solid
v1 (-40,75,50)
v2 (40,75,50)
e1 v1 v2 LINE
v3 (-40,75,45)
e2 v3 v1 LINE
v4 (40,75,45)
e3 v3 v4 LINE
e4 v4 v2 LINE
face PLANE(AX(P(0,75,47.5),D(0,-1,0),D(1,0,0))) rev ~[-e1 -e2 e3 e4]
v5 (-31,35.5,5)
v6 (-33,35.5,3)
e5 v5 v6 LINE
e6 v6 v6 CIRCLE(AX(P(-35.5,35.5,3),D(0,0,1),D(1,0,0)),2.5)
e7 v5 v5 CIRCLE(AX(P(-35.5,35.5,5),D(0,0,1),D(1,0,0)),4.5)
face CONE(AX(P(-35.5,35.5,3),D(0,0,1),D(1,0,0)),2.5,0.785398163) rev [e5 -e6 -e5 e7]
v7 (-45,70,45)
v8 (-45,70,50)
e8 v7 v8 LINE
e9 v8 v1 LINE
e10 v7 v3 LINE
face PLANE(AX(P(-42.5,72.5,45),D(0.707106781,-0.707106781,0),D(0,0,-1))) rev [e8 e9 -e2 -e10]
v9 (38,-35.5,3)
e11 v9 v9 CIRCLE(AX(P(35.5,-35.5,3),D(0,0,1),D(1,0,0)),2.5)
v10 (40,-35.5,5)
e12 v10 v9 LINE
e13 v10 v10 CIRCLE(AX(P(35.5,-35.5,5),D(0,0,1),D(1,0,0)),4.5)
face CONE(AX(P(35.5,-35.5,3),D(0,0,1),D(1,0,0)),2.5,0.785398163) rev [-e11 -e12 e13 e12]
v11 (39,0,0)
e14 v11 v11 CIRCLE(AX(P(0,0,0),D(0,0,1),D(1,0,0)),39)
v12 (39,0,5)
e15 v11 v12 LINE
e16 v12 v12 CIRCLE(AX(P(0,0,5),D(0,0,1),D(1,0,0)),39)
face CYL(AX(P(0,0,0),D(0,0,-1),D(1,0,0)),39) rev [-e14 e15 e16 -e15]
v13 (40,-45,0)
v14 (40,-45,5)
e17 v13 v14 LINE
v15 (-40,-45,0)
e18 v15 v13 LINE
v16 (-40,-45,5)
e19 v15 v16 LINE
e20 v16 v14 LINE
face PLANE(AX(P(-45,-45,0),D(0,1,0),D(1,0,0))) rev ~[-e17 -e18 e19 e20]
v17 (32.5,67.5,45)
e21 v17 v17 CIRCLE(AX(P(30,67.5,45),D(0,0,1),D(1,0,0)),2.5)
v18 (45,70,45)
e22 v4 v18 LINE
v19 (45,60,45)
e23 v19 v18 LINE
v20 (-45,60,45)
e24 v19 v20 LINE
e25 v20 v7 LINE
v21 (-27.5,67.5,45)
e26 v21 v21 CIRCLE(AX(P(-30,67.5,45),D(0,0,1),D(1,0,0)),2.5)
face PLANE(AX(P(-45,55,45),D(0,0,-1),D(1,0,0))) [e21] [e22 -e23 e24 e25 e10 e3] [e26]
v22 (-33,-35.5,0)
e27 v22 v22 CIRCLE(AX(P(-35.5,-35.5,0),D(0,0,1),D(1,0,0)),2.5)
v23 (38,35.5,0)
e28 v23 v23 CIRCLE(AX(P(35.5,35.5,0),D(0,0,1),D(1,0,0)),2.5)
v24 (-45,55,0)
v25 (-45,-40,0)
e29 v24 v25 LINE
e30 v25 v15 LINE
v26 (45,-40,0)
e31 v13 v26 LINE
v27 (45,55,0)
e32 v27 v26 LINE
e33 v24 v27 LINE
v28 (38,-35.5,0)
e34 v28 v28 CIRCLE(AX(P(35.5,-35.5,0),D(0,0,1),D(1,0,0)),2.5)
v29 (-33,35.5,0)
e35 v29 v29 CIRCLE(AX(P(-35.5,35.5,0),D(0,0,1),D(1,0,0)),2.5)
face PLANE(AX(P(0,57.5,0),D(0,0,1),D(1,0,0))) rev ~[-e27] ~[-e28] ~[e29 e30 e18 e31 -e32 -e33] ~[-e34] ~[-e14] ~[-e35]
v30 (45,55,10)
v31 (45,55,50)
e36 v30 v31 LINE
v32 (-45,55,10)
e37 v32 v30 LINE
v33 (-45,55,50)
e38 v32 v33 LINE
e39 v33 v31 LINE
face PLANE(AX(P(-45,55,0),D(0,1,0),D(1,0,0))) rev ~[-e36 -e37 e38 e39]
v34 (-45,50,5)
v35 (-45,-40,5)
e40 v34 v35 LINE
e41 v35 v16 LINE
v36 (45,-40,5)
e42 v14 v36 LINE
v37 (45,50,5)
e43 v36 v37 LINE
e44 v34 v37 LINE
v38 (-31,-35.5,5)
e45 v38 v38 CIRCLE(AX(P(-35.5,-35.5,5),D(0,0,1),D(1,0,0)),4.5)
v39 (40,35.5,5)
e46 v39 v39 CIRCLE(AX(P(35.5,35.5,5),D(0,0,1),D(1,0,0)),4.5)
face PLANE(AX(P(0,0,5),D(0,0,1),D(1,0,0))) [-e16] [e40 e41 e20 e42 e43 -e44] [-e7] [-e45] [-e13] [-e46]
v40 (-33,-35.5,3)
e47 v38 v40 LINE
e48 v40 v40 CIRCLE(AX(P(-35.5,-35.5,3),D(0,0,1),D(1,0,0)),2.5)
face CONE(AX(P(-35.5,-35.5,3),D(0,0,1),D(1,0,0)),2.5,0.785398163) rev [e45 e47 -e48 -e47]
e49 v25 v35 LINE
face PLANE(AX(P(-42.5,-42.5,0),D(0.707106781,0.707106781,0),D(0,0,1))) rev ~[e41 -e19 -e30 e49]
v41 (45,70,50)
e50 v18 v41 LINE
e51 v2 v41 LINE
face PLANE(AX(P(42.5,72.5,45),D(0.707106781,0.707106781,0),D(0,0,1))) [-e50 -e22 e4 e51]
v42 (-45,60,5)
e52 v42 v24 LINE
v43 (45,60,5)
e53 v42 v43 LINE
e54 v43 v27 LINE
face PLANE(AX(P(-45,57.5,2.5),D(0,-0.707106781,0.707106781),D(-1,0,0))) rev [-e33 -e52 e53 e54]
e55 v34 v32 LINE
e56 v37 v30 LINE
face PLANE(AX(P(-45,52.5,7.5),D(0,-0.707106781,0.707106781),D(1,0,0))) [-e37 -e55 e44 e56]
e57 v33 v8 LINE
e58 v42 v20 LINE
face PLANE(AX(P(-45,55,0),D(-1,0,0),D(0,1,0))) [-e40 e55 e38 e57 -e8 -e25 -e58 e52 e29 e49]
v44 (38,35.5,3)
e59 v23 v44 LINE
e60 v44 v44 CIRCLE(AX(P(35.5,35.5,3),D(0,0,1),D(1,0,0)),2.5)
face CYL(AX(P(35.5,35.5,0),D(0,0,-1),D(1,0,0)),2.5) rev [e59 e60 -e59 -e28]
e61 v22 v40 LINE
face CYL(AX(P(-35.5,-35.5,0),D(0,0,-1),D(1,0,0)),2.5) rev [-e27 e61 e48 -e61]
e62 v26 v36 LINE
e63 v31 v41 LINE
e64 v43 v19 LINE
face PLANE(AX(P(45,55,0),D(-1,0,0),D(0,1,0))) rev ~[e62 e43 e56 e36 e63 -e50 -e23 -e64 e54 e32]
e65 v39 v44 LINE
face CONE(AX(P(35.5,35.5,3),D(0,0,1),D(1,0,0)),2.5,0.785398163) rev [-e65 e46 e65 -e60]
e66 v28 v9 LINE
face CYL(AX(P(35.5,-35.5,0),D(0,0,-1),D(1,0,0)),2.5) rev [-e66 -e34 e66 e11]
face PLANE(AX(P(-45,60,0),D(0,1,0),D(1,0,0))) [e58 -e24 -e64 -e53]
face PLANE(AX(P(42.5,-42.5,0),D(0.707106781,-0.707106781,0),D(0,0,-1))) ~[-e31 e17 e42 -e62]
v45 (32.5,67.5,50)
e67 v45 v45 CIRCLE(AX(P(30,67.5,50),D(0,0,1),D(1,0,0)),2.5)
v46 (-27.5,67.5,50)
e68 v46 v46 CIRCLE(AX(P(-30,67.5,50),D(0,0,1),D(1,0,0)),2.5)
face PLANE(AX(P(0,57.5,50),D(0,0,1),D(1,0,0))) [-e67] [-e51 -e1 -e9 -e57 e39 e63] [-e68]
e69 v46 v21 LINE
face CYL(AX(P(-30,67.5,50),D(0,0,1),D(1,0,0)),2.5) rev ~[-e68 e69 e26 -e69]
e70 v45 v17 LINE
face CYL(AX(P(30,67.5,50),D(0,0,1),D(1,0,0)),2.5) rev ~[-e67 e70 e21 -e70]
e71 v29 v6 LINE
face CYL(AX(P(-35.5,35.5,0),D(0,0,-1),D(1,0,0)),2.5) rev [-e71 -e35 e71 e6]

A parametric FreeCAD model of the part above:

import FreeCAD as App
import Part
import Sketcher

V = App.Vector


def edges_at(feature, points):
    """Names of the edges that pass closest to the given points."""
    edges = feature.Shape.Edges
    near = lambda p: min(range(len(edges)), key=lambda i: edges[i].distToShape(Part.Vertex(*p))[0])
    return sorted({f"Edge{near(p) + 1}" for p in points})

doc = App.newDocument("Part")
body = doc.addObject("PartDesign::Body", "Body")

# Sketch on XY plane
sketch1 = body.newObject("Sketcher::SketchObject", "Sketch")
sketch1.AttachmentSupport = (doc.getObject("XY_Plane"), [""])
sketch1.MapMode = "FlatFace"
sketch1.addGeometry(Part.LineSegment(V(-45, -45, 0), V(45, -45, 0)), False)
sketch1.addGeometry(Part.LineSegment(V(45, -45, 0), V(45, 55, 0)), False)
sketch1.addGeometry(Part.LineSegment(V(45, 55, 0), V(-45, 55, 0)), False)
sketch1.addGeometry(Part.LineSegment(V(-45, 55, 0), V(-45, -45, 0)), False)
sketch1.addGeometry(Part.Circle(V(-35.5, -35.5, 0), V(0, 0, 1), 2.5), False)
sketch1.addGeometry(Part.Circle(V(35.5, -35.5, 0), V(0, 0, 1), 2.5), False)
sketch1.addGeometry(Part.Circle(V(-35.5, 35.5, 0), V(0, 0, 1), 2.5), False)
sketch1.addGeometry(Part.Circle(V(0, 0, 0), V(0, 0, 1), 39), False)
sketch1.addGeometry(Part.Circle(V(35.5, 35.5, 0), V(0, 0, 1), 2.5), False)
sketch1.addConstraint(Sketcher.Constraint("Coincident", 0, 2, 1, 1))
sketch1.addConstraint(Sketcher.Constraint("Coincident", 1, 2, 2, 1))
sketch1.addConstraint(Sketcher.Constraint("Coincident", 2, 2, 3, 1))
sketch1.addConstraint(Sketcher.Constraint("Coincident", 3, 2, 0, 1))
sketch1.addConstraint(Sketcher.Constraint("Horizontal", 0))
sketch1.addConstraint(Sketcher.Constraint("Vertical", 1))
sketch1.addConstraint(Sketcher.Constraint("Horizontal", 2))
sketch1.addConstraint(Sketcher.Constraint("Vertical", 3))
sketch1.addConstraint(Sketcher.Constraint("Coincident", 7, 3, -1, 1))
sketch1.addConstraint(Sketcher.Constraint("Equal", 4, 5))
sketch1.addConstraint(Sketcher.Constraint("Equal", 5, 6))
sketch1.addConstraint(Sketcher.Constraint("Equal", 6, 8))
sketch1.addConstraint(Sketcher.Constraint("Symmetric", 5, 3, 6, 3, -1, 1))
sketch1.addConstraint(Sketcher.Constraint("Symmetric", 4, 3, 8, 3, -1, 1))
sketch1.addConstraint(Sketcher.Constraint("Symmetric", 4, 3, 5, 3, -2))
sketch1.addConstraint(Sketcher.Constraint("Diameter", 4, 5.0))
sketch1.addConstraint(Sketcher.Constraint("Diameter", 7, 78.0))
sketch1.addConstraint(Sketcher.Constraint("DistanceX", 0, 1, 0, 2, 90.0))
sketch1.addConstraint(Sketcher.Constraint("DistanceY", 1, 1, 1, 2, 100.0))
sketch1.addConstraint(Sketcher.Constraint("DistanceX", -1, 1, 0, 2, 45.0))
sketch1.addConstraint(Sketcher.Constraint("DistanceY", 0, 2, -1, 1, 45.0))
sketch1.addConstraint(Sketcher.Constraint("DistanceX", 4, 3, 5, 3, 71.0))
sketch1.addConstraint(Sketcher.Constraint("DistanceY", 4, 3, 6, 3, 71.0))
pad1 = body.newObject("PartDesign::Pad", "Pad")
pad1.Profile = sketch1
pad1.Length = 5

# Sketch on XY plane
sketch2 = body.newObject("Sketcher::SketchObject", "Sketch001")
sketch2.AttachmentSupport = (doc.getObject("XY_Plane"), [""])
sketch2.MapMode = "FlatFace"
sketch2.addGeometry(Part.LineSegment(V(-45, 60, 0), V(-45, 55, 0)), False)
sketch2.addGeometry(Part.LineSegment(V(-45, 55, 0), V(45, 55, 0)), False)
sketch2.addGeometry(Part.LineSegment(V(45, 55, 0), V(45, 60, 0)), False)
sketch2.addGeometry(Part.LineSegment(V(45, 60, 0), V(-45, 60, 0)), False)
sketch2.addConstraint(Sketcher.Constraint("Coincident", 0, 2, 1, 1))
sketch2.addConstraint(Sketcher.Constraint("Coincident", 1, 2, 2, 1))
sketch2.addConstraint(Sketcher.Constraint("Coincident", 2, 2, 3, 1))
sketch2.addConstraint(Sketcher.Constraint("Coincident", 3, 2, 0, 1))
sketch2.addConstraint(Sketcher.Constraint("Vertical", 0))
sketch2.addConstraint(Sketcher.Constraint("Horizontal", 1))
sketch2.addConstraint(Sketcher.Constraint("Vertical", 2))
sketch2.addConstraint(Sketcher.Constraint("Horizontal", 3))
sketch2.addConstraint(Sketcher.Constraint("DistanceX", 1, 1, 1, 2, 90.0))
sketch2.addConstraint(Sketcher.Constraint("DistanceY", 0, 2, 0, 1, 5.0))
sketch2.addConstraint(Sketcher.Constraint("DistanceX", 0, 2, -1, 1, 45.0))
sketch2.addConstraint(Sketcher.Constraint("DistanceY", -1, 1, 0, 2, 55.0))
pad2 = body.newObject("PartDesign::Pad", "Pad001")
pad2.Profile = sketch2
pad2.Length = 50

# Sketch on XZ plane
sketch3 = body.newObject("Sketcher::SketchObject", "Sketch002")
sketch3.AttachmentSupport = (doc.getObject("XZ_Plane"), [""])
sketch3.MapMode = "FlatFace"
sketch3.AttachmentOffset = App.Placement(V(0, 0, -55), App.Rotation())
sketch3.addGeometry(Part.LineSegment(V(-45, 50, 0), V(-45, 45, 0)), False)
sketch3.addGeometry(Part.LineSegment(V(-45, 45, 0), V(45, 45, 0)), False)
sketch3.addGeometry(Part.LineSegment(V(45, 45, 0), V(45, 50, 0)), False)
sketch3.addGeometry(Part.LineSegment(V(45, 50, 0), V(-45, 50, 0)), False)
sketch3.addConstraint(Sketcher.Constraint("Coincident", 0, 2, 1, 1))
sketch3.addConstraint(Sketcher.Constraint("Coincident", 1, 2, 2, 1))
sketch3.addConstraint(Sketcher.Constraint("Coincident", 2, 2, 3, 1))
sketch3.addConstraint(Sketcher.Constraint("Coincident", 3, 2, 0, 1))
sketch3.addConstraint(Sketcher.Constraint("Vertical", 0))
sketch3.addConstraint(Sketcher.Constraint("Horizontal", 1))
sketch3.addConstraint(Sketcher.Constraint("Vertical", 2))
sketch3.addConstraint(Sketcher.Constraint("Horizontal", 3))
sketch3.addConstraint(Sketcher.Constraint("DistanceX", 1, 1, 1, 2, 90.0))
sketch3.addConstraint(Sketcher.Constraint("DistanceY", 0, 2, 0, 1, 5.0))
sketch3.addConstraint(Sketcher.Constraint("DistanceX", 0, 2, -1, 1, 45.0))
sketch3.addConstraint(Sketcher.Constraint("DistanceY", -1, 1, 0, 2, 45.0))
pad3 = body.newObject("PartDesign::Pad", "Pad002")
pad3.Profile = sketch3
pad3.Length = 20
pad3.Reversed = True

# Sketch on XY plane
sketch4 = body.newObject("Sketcher::SketchObject", "Sketch003")
sketch4.AttachmentSupport = (doc.getObject("XY_Plane"), [""])
sketch4.MapMode = "FlatFace"
sketch4.AttachmentOffset = App.Placement(V(0, 0, 50), App.Rotation())
sketch4.addGeometry(Part.Circle(V(30, 67.5, 0), V(0, 0, 1), 2.5), False)
sketch4.addGeometry(Part.Circle(V(-30, 67.5, 0), V(0, 0, 1), 2.5), False)
sketch4.addConstraint(Sketcher.Constraint("Equal", 0, 1))
sketch4.addConstraint(Sketcher.Constraint("Symmetric", 0, 3, 1, 3, -2))
sketch4.addConstraint(Sketcher.Constraint("Diameter", 0, 5.0))
sketch4.addConstraint(Sketcher.Constraint("DistanceX", -1, 1, 0, 3, 30.0))
sketch4.addConstraint(Sketcher.Constraint("DistanceY", -1, 1, 0, 3, 67.5))
pocket1 = body.newObject("PartDesign::Pocket", "Pocket")
pocket1.Profile = sketch4
pocket1.Length = 10
doc.recompute()

chamfer = body.newObject("PartDesign::Chamfer", "Chamfer")
chamfer.Base = (pocket1, edges_at(pocket1, [
    (-45, -45, 2.5),
    (45, -45, 2.5),
    (45, 75, 47.5),
    (-45, 75, 47.5),
    (0, 55, 5),
    (0, 60, 0),
]))
chamfer.Size = 5
doc.recompute()

chamfer2 = body.newObject("PartDesign::Chamfer", "Chamfer001")
chamfer2.Base = (chamfer, edges_at(chamfer, [
    (-38, -35.5, 5),
    (33, -35.5, 5),
    (33, 35.5, 5),
    (-38, 35.5, 5),
]))
chamfer2.Size = 2

doc.recompute()
